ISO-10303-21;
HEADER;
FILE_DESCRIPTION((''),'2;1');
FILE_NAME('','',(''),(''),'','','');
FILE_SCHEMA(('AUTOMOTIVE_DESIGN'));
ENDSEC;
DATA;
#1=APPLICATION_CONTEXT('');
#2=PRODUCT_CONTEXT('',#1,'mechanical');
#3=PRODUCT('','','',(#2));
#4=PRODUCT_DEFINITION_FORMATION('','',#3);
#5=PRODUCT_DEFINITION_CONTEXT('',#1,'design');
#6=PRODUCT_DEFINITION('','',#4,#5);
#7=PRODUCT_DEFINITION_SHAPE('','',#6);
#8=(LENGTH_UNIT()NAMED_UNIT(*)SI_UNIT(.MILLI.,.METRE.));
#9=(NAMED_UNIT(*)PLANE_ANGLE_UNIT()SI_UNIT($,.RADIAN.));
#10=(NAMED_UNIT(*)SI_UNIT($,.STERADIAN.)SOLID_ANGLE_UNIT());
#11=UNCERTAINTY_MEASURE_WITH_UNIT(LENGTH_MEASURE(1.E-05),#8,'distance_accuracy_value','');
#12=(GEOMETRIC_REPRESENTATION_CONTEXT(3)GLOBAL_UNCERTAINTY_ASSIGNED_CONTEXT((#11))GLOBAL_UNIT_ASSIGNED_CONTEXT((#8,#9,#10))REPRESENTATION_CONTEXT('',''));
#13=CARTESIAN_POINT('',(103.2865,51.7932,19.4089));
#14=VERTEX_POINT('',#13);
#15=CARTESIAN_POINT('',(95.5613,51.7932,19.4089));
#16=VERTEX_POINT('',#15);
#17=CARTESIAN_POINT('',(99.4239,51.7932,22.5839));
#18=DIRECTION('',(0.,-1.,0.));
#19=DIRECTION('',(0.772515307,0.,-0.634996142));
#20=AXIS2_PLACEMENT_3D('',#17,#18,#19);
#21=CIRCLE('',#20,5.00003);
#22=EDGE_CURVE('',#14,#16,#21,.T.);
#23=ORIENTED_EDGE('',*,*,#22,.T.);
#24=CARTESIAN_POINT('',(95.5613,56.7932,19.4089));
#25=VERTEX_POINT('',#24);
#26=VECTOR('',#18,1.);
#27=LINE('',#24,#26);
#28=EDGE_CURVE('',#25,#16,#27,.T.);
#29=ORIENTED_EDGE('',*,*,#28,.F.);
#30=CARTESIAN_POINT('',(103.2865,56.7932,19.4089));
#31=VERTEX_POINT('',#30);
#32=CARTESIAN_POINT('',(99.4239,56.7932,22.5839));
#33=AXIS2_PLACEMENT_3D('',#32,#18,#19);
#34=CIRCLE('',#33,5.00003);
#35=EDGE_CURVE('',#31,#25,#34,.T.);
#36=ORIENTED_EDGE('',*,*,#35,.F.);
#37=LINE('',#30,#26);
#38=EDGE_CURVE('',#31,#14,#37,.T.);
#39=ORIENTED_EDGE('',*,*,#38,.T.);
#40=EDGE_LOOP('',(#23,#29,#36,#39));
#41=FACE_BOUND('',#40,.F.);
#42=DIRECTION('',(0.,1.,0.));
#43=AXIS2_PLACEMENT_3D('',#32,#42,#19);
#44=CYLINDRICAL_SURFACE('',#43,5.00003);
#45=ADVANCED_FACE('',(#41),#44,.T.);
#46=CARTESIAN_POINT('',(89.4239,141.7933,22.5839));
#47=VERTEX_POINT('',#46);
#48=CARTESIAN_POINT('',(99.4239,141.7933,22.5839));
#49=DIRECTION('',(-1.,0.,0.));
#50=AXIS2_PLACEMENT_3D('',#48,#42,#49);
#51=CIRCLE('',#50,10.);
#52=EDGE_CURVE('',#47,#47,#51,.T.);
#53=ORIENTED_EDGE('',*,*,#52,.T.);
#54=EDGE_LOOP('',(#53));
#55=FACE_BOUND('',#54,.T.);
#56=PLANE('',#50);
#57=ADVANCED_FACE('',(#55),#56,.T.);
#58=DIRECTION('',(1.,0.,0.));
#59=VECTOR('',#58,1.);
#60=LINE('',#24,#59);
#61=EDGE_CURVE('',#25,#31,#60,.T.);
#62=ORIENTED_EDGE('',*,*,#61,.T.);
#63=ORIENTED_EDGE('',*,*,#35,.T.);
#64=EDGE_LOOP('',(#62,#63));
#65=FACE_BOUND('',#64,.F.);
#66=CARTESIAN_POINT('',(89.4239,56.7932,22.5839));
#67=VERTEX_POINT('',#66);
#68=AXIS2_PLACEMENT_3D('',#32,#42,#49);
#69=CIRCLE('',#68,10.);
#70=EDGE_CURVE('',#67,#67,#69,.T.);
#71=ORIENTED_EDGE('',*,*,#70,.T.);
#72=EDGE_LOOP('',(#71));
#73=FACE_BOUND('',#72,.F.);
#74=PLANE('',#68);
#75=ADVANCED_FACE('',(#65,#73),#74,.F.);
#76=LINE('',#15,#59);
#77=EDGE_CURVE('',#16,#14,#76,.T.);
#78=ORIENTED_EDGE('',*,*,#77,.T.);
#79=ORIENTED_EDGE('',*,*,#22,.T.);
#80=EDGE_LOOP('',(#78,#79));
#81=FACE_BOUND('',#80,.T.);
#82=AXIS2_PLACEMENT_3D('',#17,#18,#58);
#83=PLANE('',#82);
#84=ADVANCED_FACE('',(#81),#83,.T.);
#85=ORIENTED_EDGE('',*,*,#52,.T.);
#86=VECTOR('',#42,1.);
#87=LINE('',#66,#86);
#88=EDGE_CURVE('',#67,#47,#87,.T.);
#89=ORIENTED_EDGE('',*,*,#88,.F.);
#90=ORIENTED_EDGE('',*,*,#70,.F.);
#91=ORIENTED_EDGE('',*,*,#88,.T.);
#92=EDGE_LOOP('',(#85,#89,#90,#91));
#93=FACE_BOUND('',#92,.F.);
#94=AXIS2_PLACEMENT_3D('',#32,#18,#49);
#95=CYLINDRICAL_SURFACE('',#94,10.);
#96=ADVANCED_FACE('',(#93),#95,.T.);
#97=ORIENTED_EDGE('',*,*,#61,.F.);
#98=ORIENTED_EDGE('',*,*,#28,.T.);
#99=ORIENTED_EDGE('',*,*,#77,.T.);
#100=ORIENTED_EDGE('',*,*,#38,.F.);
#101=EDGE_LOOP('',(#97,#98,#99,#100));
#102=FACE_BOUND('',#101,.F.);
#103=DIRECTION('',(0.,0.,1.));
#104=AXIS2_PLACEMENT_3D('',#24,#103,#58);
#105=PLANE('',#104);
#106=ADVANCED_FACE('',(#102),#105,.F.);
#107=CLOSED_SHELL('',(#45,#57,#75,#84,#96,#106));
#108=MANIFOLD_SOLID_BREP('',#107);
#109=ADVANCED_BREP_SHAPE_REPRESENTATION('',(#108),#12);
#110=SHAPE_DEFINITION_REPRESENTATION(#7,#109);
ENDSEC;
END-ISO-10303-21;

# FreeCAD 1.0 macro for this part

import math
import FreeCAD as App
import Part
import Sketcher
from FreeCAD import Vector
Q = App.Units.Quantity

doc = App.newDocument("Part")
body = doc.addObject("PartDesign::Body", "Body")

# Sketch on XZ plane
sketch1 = body.newObject("Sketcher::SketchObject", "Sketch")
sketch1.AttachmentSupport = (doc.getObject("XZ_Plane"), [""])
sketch1.MapMode = "FlatFace"
sketch1.AttachmentOffset = App.Placement(Vector(0, 0, -56.7932), App.Rotation())
sketch1.addGeometry(Part.Circle(Vector(99, 23, 0), Vector(0, 0, 1), 10), False)
sketch1.addConstraint(Sketcher.Constraint("Diameter", 0, Q("20 mm")))
sketch1.addConstraint(Sketcher.Constraint("DistanceX", -1, 1, 0, 3, Q("99.424 mm")))
sketch1.addConstraint(Sketcher.Constraint("DistanceY", -1, 1, 0, 3, Q("22.584 mm")))
pad1 = body.newObject("PartDesign::Pad", "Pad")
pad1.Profile = sketch1
pad1.Length = 85.0001
pad1.Reversed = True

# Sketch on XZ plane
sketch2 = body.newObject("Sketcher::SketchObject", "Sketch001")
sketch2.AttachmentSupport = (doc.getObject("XZ_Plane"), [""])
sketch2.MapMode = "FlatFace"
sketch2.AttachmentOffset = App.Placement(Vector(0, 0, -56.7932), App.Rotation())
sketch2.addGeometry(Part.ArcOfCircle(Part.Circle(Vector(99, 23, 0), Vector(0, 0, 1), 5), math.radians(-39), math.radians(219)), False)
sketch2.addGeometry(Part.LineSegment(Vector(96, 19, 0), Vector(103, 19, 0)), False)
sketch2.addConstraint(Sketcher.Constraint("Coincident", 0, 1, 1, 2))
sketch2.addConstraint(Sketcher.Constraint("Coincident", 1, 1, 0, 2))
sketch2.addConstraint(Sketcher.Constraint("Horizontal", 1))
sketch2.addConstraint(Sketcher.Constraint("Radius", 0, Q("5 mm")))
sketch2.addConstraint(Sketcher.Constraint("DistanceX", 1, 1, 1, 2, Q("7.7252 mm")))
sketch2.addConstraint(Sketcher.Constraint("DistanceX", -1, 1, 0, 3, Q("99.424 mm")))
sketch2.addConstraint(Sketcher.Constraint("DistanceY", -1, 1, 0, 3, Q("22.584 mm")))
pad2 = body.newObject("PartDesign::Pad", "Pad001")
pad2.Profile = sketch2
pad2.Length = 5

doc.recompute()
